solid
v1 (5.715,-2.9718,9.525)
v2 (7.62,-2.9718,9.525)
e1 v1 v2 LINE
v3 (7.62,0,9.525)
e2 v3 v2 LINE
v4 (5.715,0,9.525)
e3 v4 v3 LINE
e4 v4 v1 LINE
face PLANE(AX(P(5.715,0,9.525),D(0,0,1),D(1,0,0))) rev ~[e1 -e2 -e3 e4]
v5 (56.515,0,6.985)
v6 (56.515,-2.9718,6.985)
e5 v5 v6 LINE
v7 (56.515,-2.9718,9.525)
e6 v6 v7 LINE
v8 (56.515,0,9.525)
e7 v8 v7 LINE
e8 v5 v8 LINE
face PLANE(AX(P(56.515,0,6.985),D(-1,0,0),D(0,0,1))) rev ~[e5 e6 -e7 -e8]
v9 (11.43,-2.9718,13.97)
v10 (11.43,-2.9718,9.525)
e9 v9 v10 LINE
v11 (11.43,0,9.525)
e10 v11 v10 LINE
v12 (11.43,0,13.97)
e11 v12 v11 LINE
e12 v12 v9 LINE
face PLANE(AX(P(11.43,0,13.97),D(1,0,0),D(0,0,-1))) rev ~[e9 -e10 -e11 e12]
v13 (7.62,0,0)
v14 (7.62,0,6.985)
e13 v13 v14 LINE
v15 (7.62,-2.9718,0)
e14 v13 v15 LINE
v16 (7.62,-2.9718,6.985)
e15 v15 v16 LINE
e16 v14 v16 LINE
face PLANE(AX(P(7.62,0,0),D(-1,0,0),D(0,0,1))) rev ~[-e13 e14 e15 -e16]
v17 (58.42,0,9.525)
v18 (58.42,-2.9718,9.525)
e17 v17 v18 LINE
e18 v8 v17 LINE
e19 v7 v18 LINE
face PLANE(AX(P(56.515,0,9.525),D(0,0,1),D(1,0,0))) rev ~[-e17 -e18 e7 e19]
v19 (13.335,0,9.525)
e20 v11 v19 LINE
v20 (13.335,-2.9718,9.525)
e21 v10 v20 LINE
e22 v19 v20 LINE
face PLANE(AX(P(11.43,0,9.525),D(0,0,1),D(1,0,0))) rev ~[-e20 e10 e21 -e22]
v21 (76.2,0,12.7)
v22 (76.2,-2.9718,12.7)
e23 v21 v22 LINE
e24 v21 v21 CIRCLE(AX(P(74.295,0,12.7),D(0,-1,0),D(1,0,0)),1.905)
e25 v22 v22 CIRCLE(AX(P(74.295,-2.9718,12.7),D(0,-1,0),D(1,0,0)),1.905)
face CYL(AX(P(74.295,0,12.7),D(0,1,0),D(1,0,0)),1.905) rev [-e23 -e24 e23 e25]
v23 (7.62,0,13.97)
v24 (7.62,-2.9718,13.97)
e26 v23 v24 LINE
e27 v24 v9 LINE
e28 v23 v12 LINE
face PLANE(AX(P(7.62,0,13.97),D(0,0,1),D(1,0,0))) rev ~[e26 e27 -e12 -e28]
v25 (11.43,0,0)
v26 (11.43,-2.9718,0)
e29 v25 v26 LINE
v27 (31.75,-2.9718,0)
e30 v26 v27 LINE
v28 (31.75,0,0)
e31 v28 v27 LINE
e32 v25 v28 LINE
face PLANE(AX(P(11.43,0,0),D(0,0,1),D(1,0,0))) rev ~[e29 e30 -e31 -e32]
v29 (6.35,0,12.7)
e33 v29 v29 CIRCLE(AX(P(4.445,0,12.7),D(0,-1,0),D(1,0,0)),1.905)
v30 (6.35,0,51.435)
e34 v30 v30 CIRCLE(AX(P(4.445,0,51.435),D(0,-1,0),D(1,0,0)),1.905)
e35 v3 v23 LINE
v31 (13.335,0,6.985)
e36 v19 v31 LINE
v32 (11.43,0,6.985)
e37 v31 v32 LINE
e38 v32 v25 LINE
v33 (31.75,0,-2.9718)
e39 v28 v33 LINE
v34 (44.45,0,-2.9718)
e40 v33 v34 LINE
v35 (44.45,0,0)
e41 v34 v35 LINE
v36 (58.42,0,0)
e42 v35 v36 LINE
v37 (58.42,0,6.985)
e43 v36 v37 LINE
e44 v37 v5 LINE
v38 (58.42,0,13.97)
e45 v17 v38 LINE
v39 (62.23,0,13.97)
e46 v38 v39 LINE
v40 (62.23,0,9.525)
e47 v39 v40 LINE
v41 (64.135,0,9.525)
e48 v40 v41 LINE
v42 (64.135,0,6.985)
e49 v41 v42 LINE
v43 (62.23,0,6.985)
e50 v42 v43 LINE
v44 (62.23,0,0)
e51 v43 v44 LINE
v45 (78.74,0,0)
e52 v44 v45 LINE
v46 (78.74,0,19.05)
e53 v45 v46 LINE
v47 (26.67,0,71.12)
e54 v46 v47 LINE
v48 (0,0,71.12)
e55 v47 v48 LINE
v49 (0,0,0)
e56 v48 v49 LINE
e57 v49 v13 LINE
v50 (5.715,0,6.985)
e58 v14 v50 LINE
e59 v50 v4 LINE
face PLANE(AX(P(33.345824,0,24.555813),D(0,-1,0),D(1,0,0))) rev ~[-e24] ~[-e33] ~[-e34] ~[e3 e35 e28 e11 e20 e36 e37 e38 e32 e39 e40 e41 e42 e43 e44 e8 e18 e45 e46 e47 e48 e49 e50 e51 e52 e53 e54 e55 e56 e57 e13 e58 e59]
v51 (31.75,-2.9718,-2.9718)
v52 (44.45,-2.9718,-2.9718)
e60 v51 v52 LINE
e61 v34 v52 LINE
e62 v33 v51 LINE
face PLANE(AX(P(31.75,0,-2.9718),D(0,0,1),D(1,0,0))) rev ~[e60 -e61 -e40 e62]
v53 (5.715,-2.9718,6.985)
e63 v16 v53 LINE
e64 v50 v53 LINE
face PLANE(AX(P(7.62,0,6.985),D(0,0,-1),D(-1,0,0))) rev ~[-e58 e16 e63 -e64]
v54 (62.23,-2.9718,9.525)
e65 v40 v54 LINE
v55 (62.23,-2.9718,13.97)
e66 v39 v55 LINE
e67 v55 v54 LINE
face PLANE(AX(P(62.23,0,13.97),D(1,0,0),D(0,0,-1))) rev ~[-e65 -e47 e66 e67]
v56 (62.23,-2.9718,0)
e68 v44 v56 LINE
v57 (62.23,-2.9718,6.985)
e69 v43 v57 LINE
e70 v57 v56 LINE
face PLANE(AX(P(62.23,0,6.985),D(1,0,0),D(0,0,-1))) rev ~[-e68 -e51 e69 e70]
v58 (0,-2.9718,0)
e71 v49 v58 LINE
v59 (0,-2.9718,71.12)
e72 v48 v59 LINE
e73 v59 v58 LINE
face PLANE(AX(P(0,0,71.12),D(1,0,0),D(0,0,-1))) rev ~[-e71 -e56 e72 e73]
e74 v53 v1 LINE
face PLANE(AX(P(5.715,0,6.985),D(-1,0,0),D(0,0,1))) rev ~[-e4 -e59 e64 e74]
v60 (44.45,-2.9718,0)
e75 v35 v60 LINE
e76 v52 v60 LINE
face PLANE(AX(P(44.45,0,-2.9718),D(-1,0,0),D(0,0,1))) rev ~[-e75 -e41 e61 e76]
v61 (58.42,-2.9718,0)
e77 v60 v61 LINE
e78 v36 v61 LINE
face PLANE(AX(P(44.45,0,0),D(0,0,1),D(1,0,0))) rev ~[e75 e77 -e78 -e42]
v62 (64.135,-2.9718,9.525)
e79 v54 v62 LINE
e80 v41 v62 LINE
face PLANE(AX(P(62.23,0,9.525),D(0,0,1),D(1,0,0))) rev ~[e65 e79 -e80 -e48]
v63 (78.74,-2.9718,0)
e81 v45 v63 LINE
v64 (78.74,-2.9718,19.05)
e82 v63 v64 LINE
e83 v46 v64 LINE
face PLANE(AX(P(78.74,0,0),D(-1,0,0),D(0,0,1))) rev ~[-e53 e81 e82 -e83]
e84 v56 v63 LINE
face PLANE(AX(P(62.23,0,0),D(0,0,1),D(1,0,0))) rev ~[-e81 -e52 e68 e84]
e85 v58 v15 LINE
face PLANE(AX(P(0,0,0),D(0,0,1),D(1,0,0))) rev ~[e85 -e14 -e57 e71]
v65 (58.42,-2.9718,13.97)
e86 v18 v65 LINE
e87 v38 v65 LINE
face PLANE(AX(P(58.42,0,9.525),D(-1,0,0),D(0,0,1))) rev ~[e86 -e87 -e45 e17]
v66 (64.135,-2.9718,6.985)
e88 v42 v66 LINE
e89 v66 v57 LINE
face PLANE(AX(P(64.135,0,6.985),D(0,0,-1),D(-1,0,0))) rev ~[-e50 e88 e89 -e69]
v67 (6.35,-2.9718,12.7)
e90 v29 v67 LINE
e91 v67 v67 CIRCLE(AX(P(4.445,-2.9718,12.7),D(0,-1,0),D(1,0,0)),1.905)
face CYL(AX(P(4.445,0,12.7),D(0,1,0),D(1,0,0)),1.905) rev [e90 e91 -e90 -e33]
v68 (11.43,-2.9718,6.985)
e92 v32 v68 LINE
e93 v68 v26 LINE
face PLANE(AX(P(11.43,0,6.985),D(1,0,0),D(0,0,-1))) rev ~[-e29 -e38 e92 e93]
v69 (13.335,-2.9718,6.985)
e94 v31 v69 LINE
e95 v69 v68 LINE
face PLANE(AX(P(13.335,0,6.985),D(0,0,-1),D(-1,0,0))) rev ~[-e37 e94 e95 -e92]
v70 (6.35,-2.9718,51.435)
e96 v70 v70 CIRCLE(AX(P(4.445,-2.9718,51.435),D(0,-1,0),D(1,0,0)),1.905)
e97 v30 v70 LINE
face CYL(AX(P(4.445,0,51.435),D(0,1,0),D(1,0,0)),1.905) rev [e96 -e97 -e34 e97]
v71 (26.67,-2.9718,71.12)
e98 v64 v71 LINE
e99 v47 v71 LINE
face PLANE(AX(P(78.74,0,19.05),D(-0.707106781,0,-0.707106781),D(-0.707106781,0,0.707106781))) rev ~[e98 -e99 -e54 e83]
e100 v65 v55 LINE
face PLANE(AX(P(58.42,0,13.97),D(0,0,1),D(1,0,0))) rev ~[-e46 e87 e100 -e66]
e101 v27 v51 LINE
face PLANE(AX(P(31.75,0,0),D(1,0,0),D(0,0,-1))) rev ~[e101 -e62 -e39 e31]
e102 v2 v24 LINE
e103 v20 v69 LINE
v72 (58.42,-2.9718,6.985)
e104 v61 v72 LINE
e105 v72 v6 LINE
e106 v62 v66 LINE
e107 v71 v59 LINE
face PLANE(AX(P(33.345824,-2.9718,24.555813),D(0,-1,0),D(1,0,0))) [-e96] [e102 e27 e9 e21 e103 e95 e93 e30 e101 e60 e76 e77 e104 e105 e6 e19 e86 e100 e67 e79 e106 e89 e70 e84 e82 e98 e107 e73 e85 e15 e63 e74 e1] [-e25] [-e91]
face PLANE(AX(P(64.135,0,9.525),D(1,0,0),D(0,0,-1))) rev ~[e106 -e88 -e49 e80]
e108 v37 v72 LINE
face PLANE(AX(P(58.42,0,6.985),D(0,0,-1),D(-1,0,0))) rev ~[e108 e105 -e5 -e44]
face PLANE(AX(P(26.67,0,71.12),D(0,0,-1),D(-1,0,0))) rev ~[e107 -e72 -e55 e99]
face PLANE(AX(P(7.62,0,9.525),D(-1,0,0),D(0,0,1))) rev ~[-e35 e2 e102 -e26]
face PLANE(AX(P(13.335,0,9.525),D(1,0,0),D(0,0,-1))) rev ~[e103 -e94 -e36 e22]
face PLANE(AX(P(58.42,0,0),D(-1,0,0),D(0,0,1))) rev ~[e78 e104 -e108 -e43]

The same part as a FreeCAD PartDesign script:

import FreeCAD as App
import Part
import Sketcher
Q = App.Units.Quantity


def add_polygon(sketch, points):
    """Adds a closed chain of lines whose ends are joined by coincident constraints."""
    first, n = sketch.GeometryCount, len(points)
    for a, b in zip(points, points[1:] + points[:1]):
        sketch.addGeometry(Part.LineSegment(App.Vector(*a, 0), App.Vector(*b, 0)), False)
    for i in range(n):
        sketch.addConstraint(Sketcher.Constraint("Coincident", first + i, 2, first + (i + 1) % n, 1))

doc = App.newDocument("Part")
body = doc.addObject("PartDesign::Body", "Body")

sketch1 = body.newObject("Sketcher::SketchObject", "Sketch")
sketch1.AttachmentSupport = (doc.getObject("XZ_Plane"), [""])
sketch1.MapMode = "FlatFace"
add_polygon(sketch1, [(0, 71.1), (0, 0), (7.6, 0), (7.6, 7), (5.7, 7), (5.7, 9.5), (7.6, 9.5), (7.6, 14), (11.4, 14), (11.4, 9.5), (13.3, 9.5), (13.3, 7), (11.4, 7), (11.4, 0), (31.8, 0), (31.8, -3), (44.5, -3), (44.5, 0), (58.4, 0), (58.4, 7), (56.5, 7), (56.5, 9.5), (58.4, 9.5), (58.4, 14), (62.2, 14), (62.2, 9.5), (64.1, 9.5), (64.1, 7), (62.2, 7), (62.2, 0), (78.7, 0), (78.7, 19.1), (26.7, 71.1)])
sketch1.addGeometry(Part.Circle(App.Vector(4.4, 12.7, 0), App.Vector(0, 0, 1), 1.9), False)
sketch1.addGeometry(Part.Circle(App.Vector(74.3, 12.7, 0), App.Vector(0, 0, 1), 1.9), False)
sketch1.addGeometry(Part.Circle(App.Vector(4.4, 51.4, 0), App.Vector(0, 0, 1), 1.9), False)
sketch1.addConstraint([
    Sketcher.Constraint("Vertical", 0),
    Sketcher.Constraint("Horizontal", 1),
    Sketcher.Constraint("Vertical", 2),
    Sketcher.Constraint("Horizontal", 3),
    Sketcher.Constraint("Vertical", 4),
    Sketcher.Constraint("Horizontal", 5),
    Sketcher.Constraint("Vertical", 6),
    Sketcher.Constraint("Horizontal", 7),
    Sketcher.Constraint("Vertical", 8),
    Sketcher.Constraint("Horizontal", 9),
    Sketcher.Constraint("Vertical", 10),
    Sketcher.Constraint("Horizontal", 11),
    Sketcher.Constraint("Vertical", 12),
    Sketcher.Constraint("Horizontal", 13),
    Sketcher.Constraint("Vertical", 14),
    Sketcher.Constraint("Horizontal", 15),
    Sketcher.Constraint("Vertical", 16),
    Sketcher.Constraint("Horizontal", 17),
    Sketcher.Constraint("Vertical", 18),
    Sketcher.Constraint("Horizontal", 19),
    Sketcher.Constraint("Vertical", 20),
    Sketcher.Constraint("Horizontal", 21),
    Sketcher.Constraint("Vertical", 22),
    Sketcher.Constraint("Horizontal", 23),
    Sketcher.Constraint("Vertical", 24),
    Sketcher.Constraint("Horizontal", 25),
    Sketcher.Constraint("Vertical", 26),
    Sketcher.Constraint("Horizontal", 27),
    Sketcher.Constraint("Vertical", 28),
    Sketcher.Constraint("Horizontal", 29),
    Sketcher.Constraint("Vertical", 30),
    Sketcher.Constraint("Horizontal", 32),
    Sketcher.Constraint("Coincident", 0, 2, -1, 1),
    Sketcher.Constraint("Equal", 33, 34),
    Sketcher.Constraint("Equal", 34, 35),
    Sketcher.Constraint("PointOnObject", 12, 2, -1),
    Sketcher.Constraint("PointOnObject", 16, 2, -1),
    Sketcher.Constraint("PointOnObject", 28, 2, -1),
    Sketcher.Constraint("Horizontal", 33, 3, 34, 3),
    Sketcher.Constraint("Horizontal", 5, 2, 8, 2),
    Sketcher.Constraint("Horizontal", 3, 2, 10, 2),
    Sketcher.Constraint("Horizontal", 11, 2, 18, 2),
    Sketcher.Constraint("Horizontal", 9, 2, 20, 2),
    Sketcher.Constraint("Horizontal", 7, 2, 22, 2),
    Sketcher.Constraint("Horizontal", 21, 2, 24, 2),
    Sketcher.Constraint("Horizontal", 19, 2, 26, 2),
    Sketcher.Constraint("Vertical", 33, 3, 35, 3),
    Sketcher.Constraint("Vertical", 2, 2, 5, 2),
    Sketcher.Constraint("Vertical", 8, 2, 11, 2),
    Sketcher.Constraint("Vertical", 18, 2, 21, 2),
    Sketcher.Constraint("Vertical", 24, 2, 27, 2),
    Sketcher.Constraint("Equal", 5, 9),
    Sketcher.Constraint("Equal", 11, 19),
    Sketcher.Constraint("Equal", 7, 23),
    Sketcher.Constraint("Equal", 21, 25),
    Sketcher.Constraint("Diameter", 33, Q("0.15 in")),
    Sketcher.Constraint("DistanceX", 1, 1, 1, 2, Q("0.3 in")),
    Sketcher.Constraint("DistanceX", 13, 1, 13, 2, Q("0.8 in")),
    Sketcher.Constraint("DistanceX", 15, 1, 15, 2, Q("0.5 in")),
    Sketcher.Constraint("DistanceY", 0, 2, 0, 1, Q("2.8 in")),
    Sketcher.Constraint("DistanceY", 4, 1, 4, 2, Q("0.1 in")),
    Sketcher.Constraint("Angle", 31, Q("135 deg")),
    Sketcher.Constraint("DistanceX", 7, 1, 7, 2, Q("0.15 in")),
    Sketcher.Constraint("DistanceX", 17, 1, 17, 2, Q("0.55 in")),
    Sketcher.Constraint("DistanceX", 29, 1, 29, 2, Q("0.65 in")),
    Sketcher.Constraint("DistanceX", 32, 2, 32, 1, Q("1.05 in")),
    Sketcher.Constraint("DistanceY", -1, 1, 33, 3, Q("0.5 in")),
    Sketcher.Constraint("DistanceX", 19, 2, 34, 3, Q("0.7 in")),
    Sketcher.Constraint("DistanceY", 23, 2, 30, 2, Q("0.2 in")),
    Sketcher.Constraint("DistanceX", 3, 2, 3, 1, Q("0.075 in")),
    Sketcher.Constraint("DistanceY", 2, 1, 2, 2, Q("0.275 in")),
    Sketcher.Constraint("DistanceY", 14, 2, 14, 1, Q("0.117 in")),
    Sketcher.Constraint("DistanceX", 33, 3, 34, 3, Q("2.75 in")),
    Sketcher.Constraint("DistanceY", 2, 2, 35, 3, Q("1.75 in")),
])
pad1 = body.newObject("PartDesign::Pad", "Pad")
pad1.Profile = sketch1
pad1.Length = Q("0.117 in")

doc.recompute()
